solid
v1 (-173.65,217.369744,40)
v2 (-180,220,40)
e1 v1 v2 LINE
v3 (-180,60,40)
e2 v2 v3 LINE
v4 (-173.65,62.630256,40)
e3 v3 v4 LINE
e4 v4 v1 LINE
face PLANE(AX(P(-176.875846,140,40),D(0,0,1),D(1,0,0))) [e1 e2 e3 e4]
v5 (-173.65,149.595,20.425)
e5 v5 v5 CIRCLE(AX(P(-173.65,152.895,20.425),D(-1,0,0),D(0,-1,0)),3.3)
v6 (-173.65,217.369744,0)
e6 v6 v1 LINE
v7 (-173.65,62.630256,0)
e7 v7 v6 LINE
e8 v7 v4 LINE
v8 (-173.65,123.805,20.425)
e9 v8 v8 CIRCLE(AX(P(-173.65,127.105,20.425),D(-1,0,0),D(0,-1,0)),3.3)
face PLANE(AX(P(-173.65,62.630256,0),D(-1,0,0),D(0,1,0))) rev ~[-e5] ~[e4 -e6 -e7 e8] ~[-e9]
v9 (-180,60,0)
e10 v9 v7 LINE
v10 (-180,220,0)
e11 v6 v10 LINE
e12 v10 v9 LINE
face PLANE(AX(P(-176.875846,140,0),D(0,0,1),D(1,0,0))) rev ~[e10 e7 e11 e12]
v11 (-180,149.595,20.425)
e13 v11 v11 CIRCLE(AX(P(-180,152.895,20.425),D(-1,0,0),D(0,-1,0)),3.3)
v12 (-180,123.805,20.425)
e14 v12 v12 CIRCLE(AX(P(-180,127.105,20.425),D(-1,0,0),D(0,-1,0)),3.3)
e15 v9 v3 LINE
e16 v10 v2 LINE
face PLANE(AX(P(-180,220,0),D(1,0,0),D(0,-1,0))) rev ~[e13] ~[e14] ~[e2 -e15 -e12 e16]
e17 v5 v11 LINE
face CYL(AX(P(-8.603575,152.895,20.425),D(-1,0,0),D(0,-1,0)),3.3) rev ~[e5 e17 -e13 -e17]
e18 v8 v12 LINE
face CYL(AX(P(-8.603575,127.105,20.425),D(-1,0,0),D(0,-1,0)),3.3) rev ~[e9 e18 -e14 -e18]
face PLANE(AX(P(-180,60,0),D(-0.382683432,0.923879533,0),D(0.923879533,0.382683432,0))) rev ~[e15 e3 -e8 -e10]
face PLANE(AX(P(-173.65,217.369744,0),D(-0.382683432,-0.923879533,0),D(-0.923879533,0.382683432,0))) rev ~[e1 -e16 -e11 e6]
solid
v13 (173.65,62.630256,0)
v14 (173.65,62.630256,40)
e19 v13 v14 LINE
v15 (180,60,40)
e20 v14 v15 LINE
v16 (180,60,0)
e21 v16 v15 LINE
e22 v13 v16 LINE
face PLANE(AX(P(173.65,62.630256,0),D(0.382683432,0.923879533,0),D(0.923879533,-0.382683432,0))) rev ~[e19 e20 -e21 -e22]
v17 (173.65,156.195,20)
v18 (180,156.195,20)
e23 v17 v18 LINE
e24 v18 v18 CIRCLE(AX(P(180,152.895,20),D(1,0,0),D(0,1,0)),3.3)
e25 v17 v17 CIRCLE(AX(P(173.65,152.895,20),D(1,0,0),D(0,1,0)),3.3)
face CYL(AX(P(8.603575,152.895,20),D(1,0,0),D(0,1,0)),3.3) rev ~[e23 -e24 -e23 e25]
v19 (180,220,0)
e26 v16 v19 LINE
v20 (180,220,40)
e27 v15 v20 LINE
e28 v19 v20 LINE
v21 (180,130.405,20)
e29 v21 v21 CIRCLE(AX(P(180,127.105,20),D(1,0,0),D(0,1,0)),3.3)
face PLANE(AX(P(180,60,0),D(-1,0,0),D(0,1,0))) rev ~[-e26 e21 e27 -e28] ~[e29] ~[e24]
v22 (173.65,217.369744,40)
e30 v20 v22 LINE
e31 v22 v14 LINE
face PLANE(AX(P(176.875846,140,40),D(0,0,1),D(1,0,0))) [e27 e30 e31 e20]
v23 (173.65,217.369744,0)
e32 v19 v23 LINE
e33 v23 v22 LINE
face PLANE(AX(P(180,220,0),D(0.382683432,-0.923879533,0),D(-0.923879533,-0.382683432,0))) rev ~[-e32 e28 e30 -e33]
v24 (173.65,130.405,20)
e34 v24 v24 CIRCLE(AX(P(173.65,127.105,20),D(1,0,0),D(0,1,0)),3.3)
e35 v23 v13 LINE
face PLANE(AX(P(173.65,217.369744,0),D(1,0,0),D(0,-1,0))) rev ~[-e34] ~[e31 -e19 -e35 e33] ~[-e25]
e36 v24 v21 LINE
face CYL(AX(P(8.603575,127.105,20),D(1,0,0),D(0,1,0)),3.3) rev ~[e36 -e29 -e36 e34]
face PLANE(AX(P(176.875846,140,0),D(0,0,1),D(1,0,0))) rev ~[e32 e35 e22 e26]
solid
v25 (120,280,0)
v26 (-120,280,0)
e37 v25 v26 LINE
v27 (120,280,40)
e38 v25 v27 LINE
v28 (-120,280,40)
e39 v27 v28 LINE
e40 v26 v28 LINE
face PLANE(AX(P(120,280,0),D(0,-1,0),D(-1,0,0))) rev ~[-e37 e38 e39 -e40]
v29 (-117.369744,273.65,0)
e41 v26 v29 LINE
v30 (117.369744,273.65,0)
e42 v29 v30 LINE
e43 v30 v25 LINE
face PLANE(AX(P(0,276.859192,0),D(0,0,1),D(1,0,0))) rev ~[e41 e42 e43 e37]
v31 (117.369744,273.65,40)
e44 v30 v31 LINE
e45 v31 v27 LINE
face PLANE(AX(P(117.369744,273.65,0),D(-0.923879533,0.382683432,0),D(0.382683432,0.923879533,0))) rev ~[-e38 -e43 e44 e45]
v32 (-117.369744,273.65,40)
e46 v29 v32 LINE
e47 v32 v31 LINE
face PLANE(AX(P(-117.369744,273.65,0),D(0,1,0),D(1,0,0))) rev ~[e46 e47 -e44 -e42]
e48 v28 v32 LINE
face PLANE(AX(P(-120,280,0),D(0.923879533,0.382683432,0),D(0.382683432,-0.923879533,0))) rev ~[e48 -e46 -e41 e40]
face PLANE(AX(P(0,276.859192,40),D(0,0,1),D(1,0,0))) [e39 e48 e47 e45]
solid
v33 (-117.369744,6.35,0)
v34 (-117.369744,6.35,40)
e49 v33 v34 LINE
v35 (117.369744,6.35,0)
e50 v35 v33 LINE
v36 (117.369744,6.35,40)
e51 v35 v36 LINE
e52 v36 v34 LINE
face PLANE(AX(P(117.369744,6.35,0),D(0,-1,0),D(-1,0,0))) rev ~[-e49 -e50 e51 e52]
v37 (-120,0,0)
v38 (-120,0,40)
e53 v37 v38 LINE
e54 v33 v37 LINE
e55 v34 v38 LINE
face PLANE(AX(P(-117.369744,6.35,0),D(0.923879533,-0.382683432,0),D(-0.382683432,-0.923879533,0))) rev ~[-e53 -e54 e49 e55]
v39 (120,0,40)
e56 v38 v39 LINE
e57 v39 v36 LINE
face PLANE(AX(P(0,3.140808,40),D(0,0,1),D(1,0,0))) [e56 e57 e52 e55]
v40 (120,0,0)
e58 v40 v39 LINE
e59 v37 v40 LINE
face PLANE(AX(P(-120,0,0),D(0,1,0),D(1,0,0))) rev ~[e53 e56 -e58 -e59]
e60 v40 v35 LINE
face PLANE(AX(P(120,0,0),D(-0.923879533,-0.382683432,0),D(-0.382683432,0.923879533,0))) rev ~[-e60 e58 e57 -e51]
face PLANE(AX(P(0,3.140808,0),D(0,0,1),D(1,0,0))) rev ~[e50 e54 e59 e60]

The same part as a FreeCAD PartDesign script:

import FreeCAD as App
import Part
import Sketcher
Q = App.Units.Quantity


def add_polygon(sketch, points):
    """Adds a closed chain of lines whose ends are joined by coincident constraints."""
    first, n = sketch.GeometryCount, len(points)
    for a, b in zip(points, points[1:] + points[:1]):
        sketch.addGeometry(Part.LineSegment(App.Vector(*a, 0), App.Vector(*b, 0)), False)
    for i in range(n):
        sketch.addConstraint(Sketcher.Constraint("Coincident", first + i, 2, first + (i + 1) % n, 1))

doc = App.newDocument("Part")
params = doc.addObject("Spreadsheet::Sheet", "Params")
for row, (alias, value) in enumerate([
    ("sketch1_width", "240 mm"),
    ("pad1_length", "40 mm"),
    ("sketch2_height", "160 mm"),
    ("pad2_length", "40 mm"),
    ("sketch3_diameter", "6.6 mm"),
    ("hole_diameter", "6.6 mm"),
    ("sketch4_height", "160 mm"),
    ("pad3_length", "40 mm"),
    ("sketch5_diameter", "6.6 mm"),
    ("hole2_diameter", "6.6 mm"),
    ("sketch6_width", "240 mm"),
    ("pad4_length", "40 mm"),
], start=1):
    params.set(f"A{row}", alias)
    params.set(f"B{row}", "=" + value)
    params.setAlias(f"B{row}", alias)

body = doc.addObject("PartDesign::Body", "Body")

# Sketch on XY plane
sketch1 = body.newObject("Sketcher::SketchObject", "Sketch")
sketch1.AttachmentSupport = (doc.getObject("XY_Plane"), [""])
sketch1.MapMode = "FlatFace"
add_polygon(sketch1, [(120, 280), (-120, 280), (-117, 274), (117, 274)])  # lines 0-3
sketch1.addConstraint([
    Sketcher.Constraint("Horizontal", 0),
    Sketcher.Constraint("Horizontal", 2),
    Sketcher.Constraint("Equal", 1, 3),
    Sketcher.Constraint("DistanceX", 0, 2, 0, 1, 240.0),
    Sketcher.Constraint("DistanceX", 0, 2, -1, 1, 120.0),
    Sketcher.Constraint("DistanceY", -1, 1, 0, 2, 280.0),
    Sketcher.Constraint("Angle", 1, Q("-67.5 deg")),
    Sketcher.Constraint("DistanceY", -1, 1, 1, 2, 273.65),
])
sketch1.setExpression("Constraints[7]", "Params.sketch1_width")
pad1 = body.newObject("PartDesign::Pad", "Pad")
pad1.Profile = sketch1
pad1.setExpression("Length", "Params.pad1_length")
body2 = doc.addObject("PartDesign::Body", "Body001")

# Sketch on XY plane
sketch2 = body2.newObject("Sketcher::SketchObject", "Sketch001")
sketch2.AttachmentSupport = (doc.getObject("XY_Plane001"), [""])
sketch2.MapMode = "FlatFace"
add_polygon(sketch2, [(-180, 220), (-180, 60), (-174, 63), (-174, 217)])  # lines 0-3
sketch2.addConstraint([
    Sketcher.Constraint("Vertical", 0),
    Sketcher.Constraint("Vertical", 2),
    Sketcher.Constraint("Equal", 1, 3),
    Sketcher.Constraint("DistanceY", 0, 2, 0, 1, 160.0),
    Sketcher.Constraint("DistanceX", 0, 2, -1, 1, 180.0),
    Sketcher.Constraint("DistanceY", -1, 1, 0, 2, 60.0),
    Sketcher.Constraint("Angle", 1, Q("22.5 deg")),
    Sketcher.Constraint("DistanceX", 1, 2, -1, 1, 173.65),
])
sketch2.setExpression("Constraints[7]", "Params.sketch2_height")
pad2 = body2.newObject("PartDesign::Pad", "Pad001")
pad2.Profile = sketch2
pad2.setExpression("Length", "Params.pad2_length")

# Sketch on YZ plane
sketch3 = body2.newObject("Sketcher::SketchObject", "Sketch002")
sketch3.AttachmentSupport = (doc.getObject("YZ_Plane001"), [""])
sketch3.MapMode = "FlatFace"
sketch3.AttachmentOffset = App.Placement(App.Vector(0, 0, -173.65), App.Rotation())
sketch3.addGeometry([
    Part.Circle(App.Vector(127.1, 20.4, 0), App.Vector(0, 0, 1), 3.3),
    Part.Circle(App.Vector(152.9, 20.4, 0), App.Vector(0, 0, 1), 3.3),
], False)
sketch3.addConstraint([
    Sketcher.Constraint("Equal", 0, 1),
    Sketcher.Constraint("Horizontal", 0, 3, 1, 3),
    Sketcher.Constraint("Diameter", 0, 6.6),
    Sketcher.Constraint("DistanceX", 0, 3, 1, 3, 25.79),
    Sketcher.Constraint("DistanceX", -1, 1, 0, 3, 127.105),
    Sketcher.Constraint("DistanceY", -1, 1, 0, 3, 20.425),
])
sketch3.setExpression("Constraints[2]", "Params.sketch3_diameter")
doc.recompute()
hole = body2.newObject("PartDesign::Hole", "Hole")
hole.Profile = sketch3
hole.ThreadType = "None"
hole.setExpression("Diameter", "Params.hole_diameter")
hole.DepthType = "ThroughAll"
body3 = doc.addObject("PartDesign::Body", "Body002")

# Sketch on XY plane
sketch4 = body3.newObject("Sketcher::SketchObject", "Sketch003")
sketch4.AttachmentSupport = (doc.getObject("XY_Plane002"), [""])
sketch4.MapMode = "FlatFace"
add_polygon(sketch4, [(174, 63), (180, 60), (180, 220), (174, 217)])  # lines 0-3
sketch4.addConstraint([
    Sketcher.Constraint("Vertical", 1),
    Sketcher.Constraint("Vertical", 3),
    Sketcher.Constraint("Equal", 0, 2),
    Sketcher.Constraint("DistanceY", 1, 1, 1, 2, 160.0),
    Sketcher.Constraint("DistanceX", -1, 1, 0, 2, 180.0),
    Sketcher.Constraint("DistanceY", -1, 1, 0, 2, 60.0),
    Sketcher.Constraint("Angle", 0, Q("-22.5 deg")),
    Sketcher.Constraint("DistanceX", -1, 1, 2, 2, 173.65),
])
sketch4.setExpression("Constraints[7]", "Params.sketch4_height")
pad3 = body3.newObject("PartDesign::Pad", "Pad002")
pad3.Profile = sketch4
pad3.setExpression("Length", "Params.pad3_length")

# Sketch on YZ plane
sketch5 = body3.newObject("Sketcher::SketchObject", "Sketch004")
sketch5.AttachmentSupport = (doc.getObject("YZ_Plane002"), [""])
sketch5.MapMode = "FlatFace"
sketch5.AttachmentOffset = App.Placement(App.Vector(0, 0, 173.65), App.Rotation())
sketch5.addGeometry([
    Part.Circle(App.Vector(127.1, 20, 0), App.Vector(0, 0, 1), 3.3),
    Part.Circle(App.Vector(152.9, 20, 0), App.Vector(0, 0, 1), 3.3),
], False)
sketch5.addConstraint([
    Sketcher.Constraint("Equal", 0, 1),
    Sketcher.Constraint("Horizontal", 0, 3, 1, 3),
    Sketcher.Constraint("Diameter", 0, 6.6),
    Sketcher.Constraint("DistanceY", -1, 1, 0, 3, 20.0),
    Sketcher.Constraint("DistanceX", 0, 3, 1, 3, 25.79),
    Sketcher.Constraint("DistanceX", -1, 1, 0, 3, 127.105),
])
sketch5.setExpression("Constraints[2]", "Params.sketch5_diameter")
doc.recompute()
hole2 = body3.newObject("PartDesign::Hole", "Hole001")
hole2.Profile = sketch5
hole2.ThreadType = "None"
hole2.setExpression("Diameter", "Params.hole2_diameter")
hole2.DepthType = "ThroughAll"
hole2.Reversed = True
body4 = doc.addObject("PartDesign::Body", "Body003")

# Sketch on XY plane
sketch6 = body4.newObject("Sketcher::SketchObject", "Sketch005")
sketch6.AttachmentSupport = (doc.getObject("XY_Plane003"), [""])
sketch6.MapMode = "FlatFace"
add_polygon(sketch6, [(-117, 6), (-120, 0), (120, 0), (117, 6)])  # lines 0-3
sketch6.addConstraint([
    Sketcher.Constraint("Horizontal", 1),
    Sketcher.Constraint("Horizontal", 3),
    Sketcher.Constraint("Symmetric", 0, 2, 1, 2, -1, 1),
    Sketcher.Constraint("Equal", 0, 2),
    Sketcher.Constraint("DistanceX", 1, 1, 1, 2, 240.0),
    Sketcher.Constraint("Angle", 0, Q("-112.5 deg")),
    Sketcher.Constraint("DistanceY", -1, 1, 2, 2, 6.35),
])
sketch6.setExpression("Constraints[8]", "Params.sketch6_width")
pad4 = body4.newObject("PartDesign::Pad", "Pad003")
pad4.Profile = sketch6
pad4.setExpression("Length", "Params.pad4_length")

doc.recompute()
